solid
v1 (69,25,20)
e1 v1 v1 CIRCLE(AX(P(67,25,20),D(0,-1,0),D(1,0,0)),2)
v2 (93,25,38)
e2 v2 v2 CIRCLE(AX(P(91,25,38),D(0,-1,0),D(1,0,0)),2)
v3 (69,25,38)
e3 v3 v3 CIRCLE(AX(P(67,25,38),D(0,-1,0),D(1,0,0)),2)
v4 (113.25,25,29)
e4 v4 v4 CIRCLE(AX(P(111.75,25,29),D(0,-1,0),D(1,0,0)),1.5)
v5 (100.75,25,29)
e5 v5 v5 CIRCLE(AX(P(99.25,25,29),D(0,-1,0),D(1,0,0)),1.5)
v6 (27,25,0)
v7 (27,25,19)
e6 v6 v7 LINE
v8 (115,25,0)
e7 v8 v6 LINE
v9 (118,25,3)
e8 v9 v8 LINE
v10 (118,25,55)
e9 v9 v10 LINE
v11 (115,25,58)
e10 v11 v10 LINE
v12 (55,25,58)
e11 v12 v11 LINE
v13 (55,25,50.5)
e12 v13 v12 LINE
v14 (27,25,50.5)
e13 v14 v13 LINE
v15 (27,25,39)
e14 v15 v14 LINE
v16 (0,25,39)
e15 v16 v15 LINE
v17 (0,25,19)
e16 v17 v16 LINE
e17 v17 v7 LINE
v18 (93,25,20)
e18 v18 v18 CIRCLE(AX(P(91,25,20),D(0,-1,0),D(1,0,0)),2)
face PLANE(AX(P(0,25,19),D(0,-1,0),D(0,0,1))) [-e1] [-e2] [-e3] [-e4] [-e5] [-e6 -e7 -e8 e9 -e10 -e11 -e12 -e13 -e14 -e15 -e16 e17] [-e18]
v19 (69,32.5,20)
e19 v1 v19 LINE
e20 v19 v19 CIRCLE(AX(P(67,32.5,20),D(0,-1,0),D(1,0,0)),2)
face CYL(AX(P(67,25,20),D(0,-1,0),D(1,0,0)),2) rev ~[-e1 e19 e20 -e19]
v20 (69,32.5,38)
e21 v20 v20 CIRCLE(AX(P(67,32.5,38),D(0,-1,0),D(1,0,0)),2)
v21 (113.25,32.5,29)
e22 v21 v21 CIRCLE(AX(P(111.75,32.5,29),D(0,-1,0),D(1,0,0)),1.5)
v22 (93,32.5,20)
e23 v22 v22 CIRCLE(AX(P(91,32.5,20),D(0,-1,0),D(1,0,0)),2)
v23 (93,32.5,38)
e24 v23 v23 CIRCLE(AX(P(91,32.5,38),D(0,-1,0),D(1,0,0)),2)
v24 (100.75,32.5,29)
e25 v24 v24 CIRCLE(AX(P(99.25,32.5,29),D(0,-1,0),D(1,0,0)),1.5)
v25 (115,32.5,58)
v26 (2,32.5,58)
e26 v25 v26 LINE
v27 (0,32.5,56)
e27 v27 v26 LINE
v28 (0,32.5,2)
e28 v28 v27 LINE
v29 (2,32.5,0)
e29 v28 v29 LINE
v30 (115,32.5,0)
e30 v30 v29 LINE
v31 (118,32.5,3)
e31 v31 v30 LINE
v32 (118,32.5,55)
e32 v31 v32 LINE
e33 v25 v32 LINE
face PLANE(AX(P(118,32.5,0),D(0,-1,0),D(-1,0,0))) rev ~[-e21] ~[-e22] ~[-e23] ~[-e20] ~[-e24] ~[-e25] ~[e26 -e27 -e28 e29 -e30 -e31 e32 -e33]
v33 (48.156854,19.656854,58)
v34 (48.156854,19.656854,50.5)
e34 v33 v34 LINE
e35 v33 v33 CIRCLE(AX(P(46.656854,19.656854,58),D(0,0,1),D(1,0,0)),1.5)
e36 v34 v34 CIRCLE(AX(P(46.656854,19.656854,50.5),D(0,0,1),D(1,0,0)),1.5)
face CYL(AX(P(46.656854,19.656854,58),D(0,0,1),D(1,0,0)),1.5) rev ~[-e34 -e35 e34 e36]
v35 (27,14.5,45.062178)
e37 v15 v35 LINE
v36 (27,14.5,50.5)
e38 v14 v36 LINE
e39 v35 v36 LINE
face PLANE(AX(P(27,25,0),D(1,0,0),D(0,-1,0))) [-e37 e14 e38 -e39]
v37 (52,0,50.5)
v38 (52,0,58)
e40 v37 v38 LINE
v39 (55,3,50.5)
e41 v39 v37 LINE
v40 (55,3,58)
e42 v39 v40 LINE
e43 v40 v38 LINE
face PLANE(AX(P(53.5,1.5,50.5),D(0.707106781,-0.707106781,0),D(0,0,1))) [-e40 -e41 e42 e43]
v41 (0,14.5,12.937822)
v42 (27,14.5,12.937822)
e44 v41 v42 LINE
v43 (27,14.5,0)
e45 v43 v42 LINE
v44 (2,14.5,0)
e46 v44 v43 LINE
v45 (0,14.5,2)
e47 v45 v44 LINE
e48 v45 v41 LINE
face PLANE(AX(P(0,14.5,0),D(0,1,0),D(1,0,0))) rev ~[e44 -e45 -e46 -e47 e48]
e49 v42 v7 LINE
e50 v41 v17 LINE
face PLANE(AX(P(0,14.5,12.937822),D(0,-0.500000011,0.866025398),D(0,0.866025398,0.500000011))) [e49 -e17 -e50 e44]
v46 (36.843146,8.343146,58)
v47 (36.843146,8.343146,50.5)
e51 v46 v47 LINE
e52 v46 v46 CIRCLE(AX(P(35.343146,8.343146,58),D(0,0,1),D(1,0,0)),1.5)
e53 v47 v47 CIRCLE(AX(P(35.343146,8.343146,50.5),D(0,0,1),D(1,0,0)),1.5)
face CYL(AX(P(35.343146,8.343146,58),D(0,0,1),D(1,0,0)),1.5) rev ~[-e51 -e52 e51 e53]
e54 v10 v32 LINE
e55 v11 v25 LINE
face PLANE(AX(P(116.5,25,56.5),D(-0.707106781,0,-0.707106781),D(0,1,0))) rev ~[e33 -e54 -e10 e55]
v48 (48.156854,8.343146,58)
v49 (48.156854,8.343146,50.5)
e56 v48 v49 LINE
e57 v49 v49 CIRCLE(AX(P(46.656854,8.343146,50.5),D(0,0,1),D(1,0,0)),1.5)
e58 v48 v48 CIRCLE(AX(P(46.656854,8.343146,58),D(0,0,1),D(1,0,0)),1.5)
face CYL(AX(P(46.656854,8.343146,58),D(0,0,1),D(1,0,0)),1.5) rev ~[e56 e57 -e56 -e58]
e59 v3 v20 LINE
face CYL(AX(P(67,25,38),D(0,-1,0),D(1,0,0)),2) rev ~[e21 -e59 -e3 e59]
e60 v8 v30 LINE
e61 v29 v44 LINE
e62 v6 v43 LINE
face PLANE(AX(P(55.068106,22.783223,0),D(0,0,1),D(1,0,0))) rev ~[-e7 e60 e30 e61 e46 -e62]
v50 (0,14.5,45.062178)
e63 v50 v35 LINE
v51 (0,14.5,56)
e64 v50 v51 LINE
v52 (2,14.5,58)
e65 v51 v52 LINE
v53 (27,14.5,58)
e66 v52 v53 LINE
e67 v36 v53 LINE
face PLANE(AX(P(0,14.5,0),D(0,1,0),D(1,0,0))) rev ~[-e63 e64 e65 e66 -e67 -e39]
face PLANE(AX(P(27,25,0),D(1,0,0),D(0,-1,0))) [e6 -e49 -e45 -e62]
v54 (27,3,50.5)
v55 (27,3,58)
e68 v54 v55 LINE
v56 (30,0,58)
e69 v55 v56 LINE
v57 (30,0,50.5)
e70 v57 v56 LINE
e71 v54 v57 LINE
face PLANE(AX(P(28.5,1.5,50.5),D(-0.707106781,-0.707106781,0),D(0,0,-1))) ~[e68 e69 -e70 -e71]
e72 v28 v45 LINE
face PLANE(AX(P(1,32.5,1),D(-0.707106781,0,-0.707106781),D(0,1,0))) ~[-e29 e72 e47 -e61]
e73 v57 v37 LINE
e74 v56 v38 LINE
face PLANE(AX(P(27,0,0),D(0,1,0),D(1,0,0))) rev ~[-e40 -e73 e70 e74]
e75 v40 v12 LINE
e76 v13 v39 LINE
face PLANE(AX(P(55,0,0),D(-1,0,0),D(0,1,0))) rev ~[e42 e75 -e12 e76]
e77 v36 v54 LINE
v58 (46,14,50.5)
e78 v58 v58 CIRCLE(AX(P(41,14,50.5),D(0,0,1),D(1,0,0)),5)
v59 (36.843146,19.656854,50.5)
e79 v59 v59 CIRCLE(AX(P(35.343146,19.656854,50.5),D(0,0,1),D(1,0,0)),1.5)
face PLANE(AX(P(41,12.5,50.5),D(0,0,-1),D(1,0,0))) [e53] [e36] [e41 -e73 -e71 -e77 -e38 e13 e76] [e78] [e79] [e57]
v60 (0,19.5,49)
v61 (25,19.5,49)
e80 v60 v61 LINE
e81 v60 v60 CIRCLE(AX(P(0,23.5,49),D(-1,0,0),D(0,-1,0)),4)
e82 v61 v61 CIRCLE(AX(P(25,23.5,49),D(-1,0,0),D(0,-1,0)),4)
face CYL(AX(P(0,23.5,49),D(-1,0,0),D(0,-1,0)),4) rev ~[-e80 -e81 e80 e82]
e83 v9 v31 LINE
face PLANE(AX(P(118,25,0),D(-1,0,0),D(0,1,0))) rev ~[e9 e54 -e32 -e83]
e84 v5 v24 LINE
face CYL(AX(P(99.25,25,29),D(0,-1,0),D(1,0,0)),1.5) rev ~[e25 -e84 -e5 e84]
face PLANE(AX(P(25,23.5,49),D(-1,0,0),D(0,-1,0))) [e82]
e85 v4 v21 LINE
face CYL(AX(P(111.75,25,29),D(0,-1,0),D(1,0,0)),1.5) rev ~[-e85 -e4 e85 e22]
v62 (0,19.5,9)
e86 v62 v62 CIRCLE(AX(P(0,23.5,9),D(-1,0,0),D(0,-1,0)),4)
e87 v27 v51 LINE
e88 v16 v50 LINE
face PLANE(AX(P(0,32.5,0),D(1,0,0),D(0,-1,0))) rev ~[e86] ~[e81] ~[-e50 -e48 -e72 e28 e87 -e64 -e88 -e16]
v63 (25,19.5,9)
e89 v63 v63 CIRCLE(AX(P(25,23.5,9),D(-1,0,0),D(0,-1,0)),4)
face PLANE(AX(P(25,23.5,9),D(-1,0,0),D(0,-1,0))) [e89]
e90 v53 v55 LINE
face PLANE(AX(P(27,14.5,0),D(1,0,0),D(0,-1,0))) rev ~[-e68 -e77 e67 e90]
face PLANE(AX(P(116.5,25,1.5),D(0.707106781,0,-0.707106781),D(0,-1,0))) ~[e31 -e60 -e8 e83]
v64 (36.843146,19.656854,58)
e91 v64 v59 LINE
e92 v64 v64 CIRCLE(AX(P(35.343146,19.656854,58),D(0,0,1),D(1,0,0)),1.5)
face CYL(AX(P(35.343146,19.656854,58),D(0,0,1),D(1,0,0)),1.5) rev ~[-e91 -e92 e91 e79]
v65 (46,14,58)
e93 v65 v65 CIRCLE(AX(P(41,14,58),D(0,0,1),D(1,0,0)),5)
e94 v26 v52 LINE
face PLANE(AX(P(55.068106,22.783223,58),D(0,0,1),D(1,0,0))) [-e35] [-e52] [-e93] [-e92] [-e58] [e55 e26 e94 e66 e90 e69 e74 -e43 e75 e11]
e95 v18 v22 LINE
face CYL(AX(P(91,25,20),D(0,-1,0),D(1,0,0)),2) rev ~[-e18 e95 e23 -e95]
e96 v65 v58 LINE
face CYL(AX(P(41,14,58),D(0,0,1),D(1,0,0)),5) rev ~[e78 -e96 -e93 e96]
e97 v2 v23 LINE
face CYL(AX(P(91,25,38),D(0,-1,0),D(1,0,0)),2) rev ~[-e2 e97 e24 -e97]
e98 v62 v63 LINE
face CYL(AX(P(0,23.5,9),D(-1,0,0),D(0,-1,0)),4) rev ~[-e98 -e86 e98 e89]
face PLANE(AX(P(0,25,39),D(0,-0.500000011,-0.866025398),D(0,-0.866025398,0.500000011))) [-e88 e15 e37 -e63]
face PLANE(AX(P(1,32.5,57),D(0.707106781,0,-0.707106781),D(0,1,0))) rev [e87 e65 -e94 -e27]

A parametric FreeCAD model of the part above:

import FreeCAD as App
import Part
import Sketcher
from FreeCAD import Vector
Q = App.Units.Quantity


def edges_at(feature, points):
    """Names of the edges that pass closest to the given points."""
    edges = feature.Shape.Edges
    near = lambda p: min(range(len(edges)), key=lambda i: edges[i].distToShape(Part.Vertex(*p))[0])
    return sorted({f"Edge{near(p) + 1}" for p in points})


def add_polygon(sketch, points):
    """Adds a closed chain of lines whose ends are joined by coincident constraints."""
    first, n = sketch.GeometryCount, len(points)
    for a, b in zip(points, points[1:] + points[:1]):
        sketch.addGeometry(Part.LineSegment(App.Vector(*a, 0), App.Vector(*b, 0)), False)
    for i in range(n):
        sketch.addConstraint(Sketcher.Constraint("Coincident", first + i, 2, first + (i + 1) % n, 1))

doc = App.newDocument("Part")
body = doc.addObject("PartDesign::Body", "Body")

sketch1 = doc.addObject("Sketcher::SketchObject", "Sketch")
body.addObject(sketch1)
sketch1.AttachmentSupport = (doc.XY_Plane, [""])
sketch1.MapMode = "FlatFace"
add_polygon(sketch1, [(0, 32), (0, 14), (27, 14), (27, 0), (55, 0), (55, 25), (118, 25), (118, 32)])
sketch1.addConstraint(Sketcher.Constraint("Vertical", 0))
sketch1.addConstraint(Sketcher.Constraint("Horizontal", 1))
sketch1.addConstraint(Sketcher.Constraint("Vertical", 2))
sketch1.addConstraint(Sketcher.Constraint("Horizontal", 3))
sketch1.addConstraint(Sketcher.Constraint("Vertical", 4))
sketch1.addConstraint(Sketcher.Constraint("Horizontal", 5))
sketch1.addConstraint(Sketcher.Constraint("Vertical", 6))
sketch1.addConstraint(Sketcher.Constraint("Horizontal", 7))
sketch1.addConstraint(Sketcher.Constraint("PointOnObject", 0, 2, -2))
sketch1.addConstraint(Sketcher.Constraint("PointOnObject", 2, 2, -1))
sketch1.addConstraint(Sketcher.Constraint("DistanceX", 1, 1, 1, 2, 27.0))
sketch1.addConstraint(Sketcher.Constraint("DistanceX", 3, 1, 3, 2, 28.0))
sketch1.addConstraint(Sketcher.Constraint("DistanceX", 5, 1, 5, 2, 63.0))
sketch1.addConstraint(Sketcher.Constraint("DistanceY", 0, 2, 0, 1, 18.0))
sketch1.addConstraint(Sketcher.Constraint("DistanceY", 4, 1, 4, 2, 25.0))
sketch1.addConstraint(Sketcher.Constraint("DistanceY", 2, 2, 2, 1, 14.5))
pad1 = doc.addObject("PartDesign::Pad", "Pad")
body.addObject(pad1)
pad1.Profile = sketch1
pad1.Length = 58

sketch2 = doc.addObject("Sketcher::SketchObject", "Sketch001")
body.addObject(sketch2)
sketch2.AttachmentSupport = (doc.YZ_Plane, [""])
sketch2.MapMode = "FlatFace"
sketch2.addGeometry(Part.Circle(Vector(23.5, 49, 0), Vector(0, 0, 1), 4), False)
sketch2.addGeometry(Part.Circle(Vector(23.5, 9, 0), Vector(0, 0, 1), 4), False)
sketch2.addConstraint(Sketcher.Constraint("Equal", 0, 1))
sketch2.addConstraint(Sketcher.Constraint("Vertical", 0, 3, 1, 3))
sketch2.addConstraint(Sketcher.Constraint("Diameter", 0, 8.0))
sketch2.addConstraint(Sketcher.Constraint("DistanceY", -1, 1, 0, 3, 49.0))
sketch2.addConstraint(Sketcher.Constraint("DistanceY", -1, 1, 1, 3, 9.0))
sketch2.addConstraint(Sketcher.Constraint("DistanceX", -1, 1, 0, 3, 23.5))
pocket1 = doc.addObject("PartDesign::Pocket", "Pocket")
body.addObject(pocket1)
pocket1.Profile = sketch2
pocket1.Length = 25
pocket1.Reversed = True

sketch3 = doc.addObject("Sketcher::SketchObject", "Sketch002")
body.addObject(sketch3)
sketch3.AttachmentSupport = (doc.XY_Plane, [""])
sketch3.MapMode = "FlatFace"
add_polygon(sketch3, [(27, 0), (27, 25), (55, 25), (55, 0)])
sketch3.addConstraint(Sketcher.Constraint("Vertical", 0))
sketch3.addConstraint(Sketcher.Constraint("Horizontal", 1))
sketch3.addConstraint(Sketcher.Constraint("Vertical", 2))
sketch3.addConstraint(Sketcher.Constraint("Horizontal", 3))
sketch3.addConstraint(Sketcher.Constraint("PointOnObject", 2, 2, -1))
sketch3.addConstraint(Sketcher.Constraint("DistanceX", 1, 1, 1, 2, 28.0))
sketch3.addConstraint(Sketcher.Constraint("DistanceY", 0, 1, 0, 2, 25.0))
sketch3.addConstraint(Sketcher.Constraint("DistanceX", -1, 1, 0, 2, 27.0))
pocket2 = doc.addObject("PartDesign::Pocket", "Pocket001")
body.addObject(pocket2)
pocket2.Profile = sketch3
pocket2.Length = 50.5
pocket2.Reversed = True

sketch4 = doc.addObject("Sketcher::SketchObject", "Sketch003")
body.addObject(sketch4)
sketch4.AttachmentSupport = (doc.XY_Plane, [""])
sketch4.MapMode = "FlatFace"
sketch4.AttachmentOffset = App.Placement(Vector(0, 0, 58), App.Rotation())
sketch4.addGeometry(Part.Circle(Vector(41, 14, 0), Vector(0, 0, 1), 5), False)
sketch4.addGeometry(Part.Circle(Vector(35.3, 19.7, 0), Vector(0, 0, 1), 1.5), False)
sketch4.addGeometry(Part.Circle(Vector(46.7, 19.7, 0), Vector(0, 0, 1), 1.5), False)
sketch4.addGeometry(Part.Circle(Vector(46.7, 8.3, 0), Vector(0, 0, 1), 1.5), False)
sketch4.addGeometry(Part.Circle(Vector(35.3, 8.3, 0), Vector(0, 0, 1), 1.5), False)
sketch4.addConstraint(Sketcher.Constraint("Equal", 1, 2))
sketch4.addConstraint(Sketcher.Constraint("Equal", 2, 3))
sketch4.addConstraint(Sketcher.Constraint("Equal", 3, 4))
sketch4.addConstraint(Sketcher.Constraint("Horizontal", 1, 3, 2, 3))
sketch4.addConstraint(Sketcher.Constraint("Horizontal", 3, 3, 4, 3))
sketch4.addConstraint(Sketcher.Constraint("Vertical", 2, 3, 3, 3))
sketch4.addConstraint(Sketcher.Constraint("Vertical", 1, 3, 4, 3))
sketch4.addConstraint(Sketcher.Constraint("Diameter", 0, 10.0))
sketch4.addConstraint(Sketcher.Constraint("Diameter", 1, 3.0))
sketch4.addConstraint(Sketcher.Constraint("DistanceX", -1, 1, 0, 3, 41.0))
sketch4.addConstraint(Sketcher.Constraint("DistanceY", -1, 1, 0, 3, 14.0))
sketch4.addConstraint(Sketcher.Constraint("DistanceX", 1, 3, 2, 3, 11.313708))
sketch4.addConstraint(Sketcher.Constraint("DistanceX", -1, 1, 1, 3, 35.343146))
sketch4.addConstraint(Sketcher.Constraint("DistanceY", -1, 1, 1, 3, 19.656854))
sketch4.addConstraint(Sketcher.Constraint("DistanceY", -1, 1, 3, 3, 8.343146))
pocket3 = doc.addObject("PartDesign::Pocket", "Pocket002")
body.addObject(pocket3)
pocket3.Profile = sketch4
pocket3.Type = "ThroughAll"

sketch5 = doc.addObject("Sketcher::SketchObject", "Sketch004")
body.addObject(sketch5)
sketch5.AttachmentSupport = (doc.YZ_Plane, [""])
sketch5.MapMode = "FlatFace"
add_polygon(sketch5, [(14, 13), (14, 45), (25, 39), (25, 19)])
sketch5.addConstraint(Sketcher.Constraint("Vertical", 0))
sketch5.addConstraint(Sketcher.Constraint("Vertical", 2))
sketch5.addConstraint(Sketcher.Constraint("Equal", 1, 3))
sketch5.addConstraint(Sketcher.Constraint("DistanceY", 2, 2, 2, 1, 20.0))
sketch5.addConstraint(Sketcher.Constraint("Angle", 1, Q("-30.000001 deg")))
sketch5.addConstraint(Sketcher.Constraint("DistanceX", -1, 1, 1, 2, 25.0))
sketch5.addConstraint(Sketcher.Constraint("DistanceY", -1, 1, 1, 2, 39.0))
sketch5.addConstraint(Sketcher.Constraint("DistanceX", -1, 1, 0, 2, 14.5))
pocket4 = doc.addObject("PartDesign::Pocket", "Pocket003")
body.addObject(pocket4)
pocket4.Profile = sketch5
pocket4.Length = 27
pocket4.Reversed = True

sketch6 = doc.addObject("Sketcher::SketchObject", "Sketch005")
body.addObject(sketch6)
sketch6.AttachmentSupport = (doc.XZ_Plane, [""])
sketch6.MapMode = "FlatFace"
sketch6.AttachmentOffset = App.Placement(Vector(0, 0, -25), App.Rotation())
sketch6.addGeometry(Part.Circle(Vector(67, 38, 0), Vector(0, 0, 1), 2), False)
sketch6.addGeometry(Part.Circle(Vector(91, 38, 0), Vector(0, 0, 1), 2), False)
sketch6.addGeometry(Part.Circle(Vector(91, 20, 0), Vector(0, 0, 1), 2), False)
sketch6.addGeometry(Part.Circle(Vector(67, 20, 0), Vector(0, 0, 1), 2), False)
sketch6.addGeometry(Part.Circle(Vector(99.2, 29, 0), Vector(0, 0, 1), 1.5), False)
sketch6.addGeometry(Part.Circle(Vector(111.8, 29, 0), Vector(0, 0, 1), 1.5), False)
sketch6.addConstraint(Sketcher.Constraint("Equal", 0, 1))
sketch6.addConstraint(Sketcher.Constraint("Equal", 1, 2))
sketch6.addConstraint(Sketcher.Constraint("Equal", 2, 3))
sketch6.addConstraint(Sketcher.Constraint("Equal", 4, 5))
sketch6.addConstraint(Sketcher.Constraint("Horizontal", 0, 3, 1, 3))
sketch6.addConstraint(Sketcher.Constraint("Horizontal", 2, 3, 3, 3))
sketch6.addConstraint(Sketcher.Constraint("Horizontal", 4, 3, 5, 3))
sketch6.addConstraint(Sketcher.Constraint("Vertical", 1, 3, 2, 3))
sketch6.addConstraint(Sketcher.Constraint("Vertical", 0, 3, 3, 3))
sketch6.addConstraint(Sketcher.Constraint("Diameter", 0, 4.0))
sketch6.addConstraint(Sketcher.Constraint("Diameter", 4, 3.0))
sketch6.addConstraint(Sketcher.Constraint("DistanceX", -1, 1, 0, 3, 67.0))
sketch6.addConstraint(Sketcher.Constraint("DistanceY", -1, 1, 0, 3, 38.0))
sketch6.addConstraint(Sketcher.Constraint("DistanceX", -1, 1, 1, 3, 91.0))
sketch6.addConstraint(Sketcher.Constraint("DistanceY", -1, 1, 2, 3, 20.0))
sketch6.addConstraint(Sketcher.Constraint("DistanceY", -1, 1, 4, 3, 29.0))
sketch6.addConstraint(Sketcher.Constraint("DistanceX", 4, 3, 5, 3, 12.5))
sketch6.addConstraint(Sketcher.Constraint("DistanceX", -1, 1, 4, 3, 99.25))
pocket5 = doc.addObject("PartDesign::Pocket", "Pocket004")
body.addObject(pocket5)
pocket5.Profile = sketch6
pocket5.Type = "ThroughAll"
doc.recompute()

chamfer = doc.addObject("PartDesign::Chamfer", "Chamfer")
body.addObject(chamfer)
chamfer.Base = (pocket5, edges_at(pocket5, [(0, 23.5, 58), (0, 23.5, 0)]))
chamfer.Size = 2
doc.recompute()

chamfer2 = doc.addObject("PartDesign::Chamfer", "Chamfer001")
body.addObject(chamfer2)
chamfer2.Base = (chamfer, edges_at(chamfer, [(27, 0, 54.25), (55, 0, 54.25)]))
chamfer2.Size = 3
doc.recompute()

chamfer3 = doc.addObject("PartDesign::Chamfer", "Chamfer002")
body.addObject(chamfer3)
chamfer3.Base = (chamfer2, edges_at(chamfer2, [(118, 28.75, 0), (118, 28.75, 58)]))
chamfer3.Size = 3

doc.recompute()
